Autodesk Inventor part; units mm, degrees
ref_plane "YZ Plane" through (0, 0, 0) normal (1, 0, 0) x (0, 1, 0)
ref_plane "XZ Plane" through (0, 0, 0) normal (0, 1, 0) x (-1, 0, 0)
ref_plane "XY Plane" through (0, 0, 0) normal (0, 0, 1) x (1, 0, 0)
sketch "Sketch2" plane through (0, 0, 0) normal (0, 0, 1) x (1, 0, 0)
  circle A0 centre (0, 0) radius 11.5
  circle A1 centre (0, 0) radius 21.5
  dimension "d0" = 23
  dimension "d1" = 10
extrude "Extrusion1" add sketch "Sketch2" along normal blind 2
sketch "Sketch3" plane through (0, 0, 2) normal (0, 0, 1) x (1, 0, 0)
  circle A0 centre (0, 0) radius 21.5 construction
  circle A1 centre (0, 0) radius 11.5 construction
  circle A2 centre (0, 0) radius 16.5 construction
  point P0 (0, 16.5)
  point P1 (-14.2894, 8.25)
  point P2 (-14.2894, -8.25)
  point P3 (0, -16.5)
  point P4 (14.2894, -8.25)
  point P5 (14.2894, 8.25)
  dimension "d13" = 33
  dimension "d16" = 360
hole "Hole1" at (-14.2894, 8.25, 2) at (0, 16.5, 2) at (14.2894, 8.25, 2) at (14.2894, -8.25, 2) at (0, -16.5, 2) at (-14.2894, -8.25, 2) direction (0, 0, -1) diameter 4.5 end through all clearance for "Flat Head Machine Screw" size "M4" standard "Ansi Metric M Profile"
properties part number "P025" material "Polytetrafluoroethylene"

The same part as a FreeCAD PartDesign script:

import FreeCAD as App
import Part
import Sketcher
from FreeCAD import Vector

doc = App.newDocument("Part")
params = doc.addObject("Spreadsheet::Sheet", "Params")
for row, (alias, value) in enumerate([
    ("sketch1_diameter", "23 mm"),
    ("sketch1_diameter2", "43 mm"),
    ("pad1_length", "2 mm"),
    ("sketch2_diameter", "4.5 mm"),
    ("hole_diameter", "4.5 mm"),
], start=1):
    params.set(f"A{row}", alias)
    params.set(f"B{row}", "=" + value)
    params.setAlias(f"B{row}", alias)

body = doc.addObject("PartDesign::Body", "Body")

# Sketch on XY plane
sketch1 = doc.addObject("Sketcher::SketchObject", "Sketch")
body.addObject(sketch1)
sketch1.AttachmentSupport = (doc.XY_Plane, [""])
sketch1.MapMode = "FlatFace"
sketch1.addGeometry(Part.Circle(Vector(0, 0, 0), Vector(0, 0, 1), 21.5), False)
sketch1.addGeometry(Part.Circle(Vector(0, 0, 0), Vector(0, 0, 1), 11.5), False)
sketch1.addConstraint(Sketcher.Constraint("Coincident", 0, 3, -1, 1))
sketch1.addConstraint(Sketcher.Constraint("Coincident", 1, 3, -1, 1))
sketch1.addConstraint(Sketcher.Constraint("Diameter", 1, 23.0))
sketch1.addConstraint(Sketcher.Constraint("Diameter", 0, 43.0))
sketch1.setExpression("Constraints[2]", "Params.sketch1_diameter")
sketch1.setExpression("Constraints[3]", "Params.sketch1_diameter2")
pad1 = doc.addObject("PartDesign::Pad", "Pad")
body.addObject(pad1)
pad1.Profile = sketch1
pad1.setExpression("Length", "Params.pad1_length")

# Sketch on XY plane
sketch2 = doc.addObject("Sketcher::SketchObject", "Sketch001")
body.addObject(sketch2)
sketch2.AttachmentSupport = (doc.XY_Plane, [""])
sketch2.MapMode = "FlatFace"
sketch2.AttachmentOffset = App.Placement(Vector(0, 0, 2), App.Rotation())
sketch2.addGeometry(Part.Circle(Vector(-14.2894, 8.25, 0), Vector(0, 0, 1), 2.25), False)
sketch2.addGeometry(Part.Circle(Vector(0, 16.5, 0), Vector(0, 0, 1), 2.25), False)
sketch2.addGeometry(Part.Circle(Vector(14.2894, 8.25, 0), Vector(0, 0, 1), 2.25), False)
sketch2.addGeometry(Part.Circle(Vector(14.2894, -8.25, 0), Vector(0, 0, 1), 2.25), False)
sketch2.addGeometry(Part.Circle(Vector(0, -16.5, 0), Vector(0, 0, 1), 2.25), False)
sketch2.addGeometry(Part.Circle(Vector(-14.2894, -8.25, 0), Vector(0, 0, 1), 2.25), False)
sketch2.addConstraint(Sketcher.Constraint("Equal", 0, 1))
sketch2.addConstraint(Sketcher.Constraint("Equal", 1, 2))
sketch2.addConstraint(Sketcher.Constraint("Equal", 2, 3))
sketch2.addConstraint(Sketcher.Constraint("Equal", 3, 4))
sketch2.addConstraint(Sketcher.Constraint("Equal", 4, 5))
sketch2.addConstraint(Sketcher.Constraint("Symmetric", 0, 3, 3, 3, -1, 1))
sketch2.addConstraint(Sketcher.Constraint("Symmetric", 1, 3, 4, 3, -1, 1))
sketch2.addConstraint(Sketcher.Constraint("Symmetric", 2, 3, 5, 3, -1, 1))
sketch2.addConstraint(Sketcher.Constraint("Symmetric", 0, 3, 2, 3, -2))
sketch2.addConstraint(Sketcher.Constraint("PointOnObject", 1, 3, -2))
sketch2.addConstraint(Sketcher.Constraint("Diameter", 0, 4.5))
sketch2.addConstraint(Sketcher.Constraint("DistanceY", 4, 3, 1, 3, 33.0))
sketch2.addConstraint(Sketcher.Constraint("DistanceY", 3, 3, 2, 3, 16.5))
sketch2.addConstraint(Sketcher.Constraint("DistanceX", 0, 3, -1, 1, 14.2894))
sketch2.setExpression("Constraints[10]", "Params.sketch2_diameter")
doc.recompute()
hole = doc.addObject("PartDesign::Hole", "Hole")
body.addObject(hole)
hole.Profile = sketch2
hole.ThreadType = "None"
hole.setExpression("Diameter", "Params.hole_diameter")
hole.DepthType = "ThroughAll"

doc.recompute()
